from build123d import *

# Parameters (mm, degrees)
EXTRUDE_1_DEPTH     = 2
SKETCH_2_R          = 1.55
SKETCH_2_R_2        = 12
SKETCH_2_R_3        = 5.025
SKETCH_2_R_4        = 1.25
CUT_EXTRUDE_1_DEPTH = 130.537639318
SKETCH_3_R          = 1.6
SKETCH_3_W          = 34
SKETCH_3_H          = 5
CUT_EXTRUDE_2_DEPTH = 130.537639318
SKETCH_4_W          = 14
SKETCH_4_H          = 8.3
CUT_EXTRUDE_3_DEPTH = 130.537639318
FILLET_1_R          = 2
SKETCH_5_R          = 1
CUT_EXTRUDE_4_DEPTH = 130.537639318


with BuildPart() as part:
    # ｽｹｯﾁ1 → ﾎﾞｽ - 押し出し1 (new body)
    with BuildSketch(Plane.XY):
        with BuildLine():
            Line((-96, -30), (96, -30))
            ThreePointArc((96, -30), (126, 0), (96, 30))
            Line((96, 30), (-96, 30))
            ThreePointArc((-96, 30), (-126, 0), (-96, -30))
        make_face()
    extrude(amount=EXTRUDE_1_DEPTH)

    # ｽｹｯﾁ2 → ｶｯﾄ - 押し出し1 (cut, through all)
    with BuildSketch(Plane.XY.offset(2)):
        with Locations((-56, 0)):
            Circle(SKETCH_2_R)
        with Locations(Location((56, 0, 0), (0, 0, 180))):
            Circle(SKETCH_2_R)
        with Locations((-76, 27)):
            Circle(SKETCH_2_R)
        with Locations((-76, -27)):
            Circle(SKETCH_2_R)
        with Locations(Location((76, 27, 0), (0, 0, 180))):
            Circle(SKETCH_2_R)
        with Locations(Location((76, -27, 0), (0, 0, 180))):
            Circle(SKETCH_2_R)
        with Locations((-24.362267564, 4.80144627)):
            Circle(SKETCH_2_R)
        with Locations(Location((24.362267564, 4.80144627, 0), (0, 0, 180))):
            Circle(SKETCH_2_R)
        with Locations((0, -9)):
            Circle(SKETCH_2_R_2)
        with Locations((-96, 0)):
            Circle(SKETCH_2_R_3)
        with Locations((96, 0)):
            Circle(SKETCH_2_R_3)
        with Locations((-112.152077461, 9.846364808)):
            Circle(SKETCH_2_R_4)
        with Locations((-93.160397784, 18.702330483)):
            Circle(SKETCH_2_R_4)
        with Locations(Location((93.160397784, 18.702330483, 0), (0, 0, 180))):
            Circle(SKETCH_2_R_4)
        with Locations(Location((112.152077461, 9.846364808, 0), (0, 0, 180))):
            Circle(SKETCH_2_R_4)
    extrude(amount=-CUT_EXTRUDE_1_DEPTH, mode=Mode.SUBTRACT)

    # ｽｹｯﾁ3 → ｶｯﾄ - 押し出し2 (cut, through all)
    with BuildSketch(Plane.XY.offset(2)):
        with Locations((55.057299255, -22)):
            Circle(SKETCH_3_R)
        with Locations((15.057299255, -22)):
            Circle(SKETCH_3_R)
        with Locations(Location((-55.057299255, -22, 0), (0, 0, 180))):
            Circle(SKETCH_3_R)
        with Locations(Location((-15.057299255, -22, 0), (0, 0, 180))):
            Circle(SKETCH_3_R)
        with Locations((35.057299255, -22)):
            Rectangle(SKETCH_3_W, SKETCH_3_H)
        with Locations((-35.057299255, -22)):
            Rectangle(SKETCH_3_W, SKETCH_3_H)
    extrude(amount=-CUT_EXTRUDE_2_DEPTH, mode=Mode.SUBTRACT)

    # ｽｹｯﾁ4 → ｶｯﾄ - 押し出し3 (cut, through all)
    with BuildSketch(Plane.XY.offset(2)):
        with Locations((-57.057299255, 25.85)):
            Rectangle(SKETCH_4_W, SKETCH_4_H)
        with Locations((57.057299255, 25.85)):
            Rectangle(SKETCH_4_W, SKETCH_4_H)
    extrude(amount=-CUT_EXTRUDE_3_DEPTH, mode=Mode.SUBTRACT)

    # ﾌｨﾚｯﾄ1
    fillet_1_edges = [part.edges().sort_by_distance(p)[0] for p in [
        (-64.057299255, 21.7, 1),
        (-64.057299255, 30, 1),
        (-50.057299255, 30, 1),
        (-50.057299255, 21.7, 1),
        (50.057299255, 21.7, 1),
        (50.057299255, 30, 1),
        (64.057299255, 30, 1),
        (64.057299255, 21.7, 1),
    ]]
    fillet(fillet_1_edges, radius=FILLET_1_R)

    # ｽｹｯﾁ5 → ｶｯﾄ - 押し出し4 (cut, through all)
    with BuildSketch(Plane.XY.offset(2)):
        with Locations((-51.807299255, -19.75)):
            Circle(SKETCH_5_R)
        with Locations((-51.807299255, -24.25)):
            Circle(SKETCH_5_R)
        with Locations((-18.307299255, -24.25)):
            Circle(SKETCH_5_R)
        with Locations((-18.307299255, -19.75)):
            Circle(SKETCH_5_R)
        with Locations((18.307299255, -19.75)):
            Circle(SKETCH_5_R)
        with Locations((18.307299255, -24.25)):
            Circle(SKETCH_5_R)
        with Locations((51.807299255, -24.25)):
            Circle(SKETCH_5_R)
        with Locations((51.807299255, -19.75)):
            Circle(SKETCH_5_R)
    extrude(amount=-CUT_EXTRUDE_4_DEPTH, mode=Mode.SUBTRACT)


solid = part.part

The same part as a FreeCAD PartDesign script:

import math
import FreeCAD as App
import Part
import Sketcher
from FreeCAD import Vector


def edges_at(feature, points):
    """Names of the edges that pass closest to the given points."""
    edges = feature.Shape.Edges
    near = lambda p: min(range(len(edges)), key=lambda i: edges[i].distToShape(Part.Vertex(*p))[0])
    return sorted({f"Edge{near(p) + 1}" for p in points})

doc = App.newDocument("Part")
params = doc.addObject("Spreadsheet::Sheet", "Params")
for row, (alias, value) in enumerate([
    ("sketch1_radius", "30 mm"),
    ("sketch1_width", "192 mm"),
    ("pad1_length", "2 mm"),
    ("sketch2_diameter", "24 mm"),
    ("sketch2_diameter2", "3.1 mm"),
    ("sketch2_diameter3", "2.5 mm"),
    ("sketch2_diameter4", "10.05 mm"),
    ("sketch3_diameter", "3.2 mm"),
    ("sketch3_width", "34 mm"),
    ("sketch3_height", "5 mm"),
    ("sketch4_width", "14 mm"),
    ("sketch4_height", "8.3 mm"),
    ("fillet_radius", "2 mm"),
    ("sketch5_diameter", "2 mm"),
], start=1):
    params.set(f"A{row}", alias)
    params.set(f"B{row}", "=" + value)
    params.setAlias(f"B{row}", alias)

body = doc.addObject("PartDesign::Body", "Body")

sketch1 = doc.addObject("Sketcher::SketchObject", "Sketch")
body.addObject(sketch1)
sketch1.AttachmentSupport = (doc.XY_Plane, [""])
sketch1.MapMode = "FlatFace"
sketch1.addGeometry([
    Part.LineSegment(Vector(-96, -30, 0), Vector(96, -30, 0)),
    Part.ArcOfCircle(Part.Circle(Vector(96, 0, 0), Vector(0, 0, 1), 30), math.radians(-90), math.radians(90)),
    Part.LineSegment(Vector(96, 30, 0), Vector(-96, 30, 0)),
    Part.ArcOfCircle(Part.Circle(Vector(-96, 0, 0), Vector(0, 0, 1), 30), math.radians(90), math.radians(270)),
], False)
sketch1.addConstraint([
    Sketcher.Constraint("Tangent", 0, 2, 1, 1),
    Sketcher.Constraint("Tangent", 1, 2, 2, 1),
    Sketcher.Constraint("Tangent", 2, 2, 3, 1),
    Sketcher.Constraint("Tangent", 3, 2, 0, 1),
    Sketcher.Constraint("Horizontal", 0),
    Sketcher.Constraint("Horizontal", 2),
    Sketcher.Constraint("Symmetric", 1, 3, 3, 3, -1, 1),
    Sketcher.Constraint("Radius", 1, 30.0),
    Sketcher.Constraint("DistanceX", 0, 1, 0, 2, 192.0),
])
sketch1.setExpression("Constraints[7]", "Params.sketch1_radius")
sketch1.setExpression("Constraints[8]", "Params.sketch1_width")
pad1 = doc.addObject("PartDesign::Pad", "Pad")
body.addObject(pad1)
pad1.Profile = sketch1
pad1.setExpression("Length", "Params.pad1_length")

sketch2 = doc.addObject("Sketcher::SketchObject", "Sketch001")
body.addObject(sketch2)
sketch2.AttachmentSupport = (doc.XY_Plane, [""])
sketch2.MapMode = "FlatFace"
sketch2.AttachmentOffset = App.Placement(Vector(0, 0, 2), App.Rotation())
sketch2.addGeometry([
    Part.Circle(Vector(-56, 0, 0), Vector(0, 0, 1), 1.6),
    Part.Circle(Vector(56, 0, 0), Vector(0, 0, 1), 1.6),
    Part.Circle(Vector(-76, 27, 0), Vector(0, 0, 1), 1.6),
    Part.Circle(Vector(-76, -27, 0), Vector(0, 0, 1), 1.6),
    Part.Circle(Vector(76, 27, 0), Vector(0, 0, 1), 1.6),
    Part.Circle(Vector(76, -27, 0), Vector(0, 0, 1), 1.6),
    Part.Circle(Vector(-24.4, 4.8, 0), Vector(0, 0, 1), 1.6),
    Part.Circle(Vector(24.4, 4.8, 0), Vector(0, 0, 1), 1.6),
    Part.Circle(Vector(0, -9, 0), Vector(0, 0, 1), 12),
    Part.Circle(Vector(-96, 0, 0), Vector(0, 0, 1), 5),
    Part.Circle(Vector(96, 0, 0), Vector(0, 0, 1), 5),
    Part.Circle(Vector(-112.2, 9.8, 0), Vector(0, 0, 1), 1.2),
    Part.Circle(Vector(-93.2, 18.7, 0), Vector(0, 0, 1), 1.2),
    Part.Circle(Vector(93.2, 18.7, 0), Vector(0, 0, 1), 1.2),
    Part.Circle(Vector(112.2, 9.8, 0), Vector(0, 0, 1), 1.2),
], False)
sketch2.addConstraint([
    Sketcher.Constraint("Equal", 0, 1),
    Sketcher.Constraint("Equal", 1, 2),
    Sketcher.Constraint("Equal", 2, 3),
    Sketcher.Constraint("Equal", 3, 4),
    Sketcher.Constraint("Equal", 4, 5),
    Sketcher.Constraint("Equal", 5, 6),
    Sketcher.Constraint("Equal", 6, 7),
    Sketcher.Constraint("Equal", 9, 10),
    Sketcher.Constraint("Equal", 11, 12),
    Sketcher.Constraint("Equal", 12, 13),
    Sketcher.Constraint("Equal", 13, 14),
    Sketcher.Constraint("Symmetric", 0, 3, 1, 3, -1, 1),
    Sketcher.Constraint("Symmetric", 3, 3, 4, 3, -1, 1),
    Sketcher.Constraint("Symmetric", 2, 3, 5, 3, -1, 1),
    Sketcher.Constraint("Symmetric", 9, 3, 10, 3, -1, 1),
    Sketcher.Constraint("Symmetric", 2, 3, 4, 3, -2),
    Sketcher.Constraint("Symmetric", 6, 3, 7, 3, -2),
    Sketcher.Constraint("Symmetric", 12, 3, 13, 3, -2),
    Sketcher.Constraint("Symmetric", 11, 3, 14, 3, -2),
    Sketcher.Constraint("PointOnObject", 0, 3, -1),
    Sketcher.Constraint("PointOnObject", 8, 3, -2),
    Sketcher.Constraint("PointOnObject", 9, 3, -1),
    Sketcher.Constraint("Diameter", 8, 24.0),
    Sketcher.Constraint("Diameter", 0, 3.1),
    Sketcher.Constraint("Diameter", 11, 2.5),
    Sketcher.Constraint("Diameter", 9, 10.05),
    Sketcher.Constraint("DistanceX", 0, 3, -1, 1, 56.0),
    Sketcher.Constraint("DistanceX", 2, 3, -1, 1, 76.0),
    Sketcher.Constraint("DistanceY", -1, 1, 2, 3, 27.0),
    Sketcher.Constraint("DistanceY", 8, 3, -1, 1, 9.0),
    Sketcher.Constraint("DistanceX", 9, 3, -1, 1, 96.0),
    Sketcher.Constraint("DistanceY", -1, 1, 12, 3, 18.70233),
    Sketcher.Constraint("DistanceX", 11, 3, 6, 3, 87.78981),
    Sketcher.Constraint("DistanceY", 6, 3, 11, 3, 5.044919),
    Sketcher.Constraint("DistanceX", 11, 3, 12, 3, 18.99168),
    Sketcher.Constraint("DistanceX", 6, 3, -1, 1, 24.362268),
    Sketcher.Constraint("DistanceY", -1, 1, 6, 3, 4.801446),
])
sketch2.setExpression("Constraints[22]", "Params.sketch2_diameter")
sketch2.setExpression("Constraints[23]", "Params.sketch2_diameter2")
sketch2.setExpression("Constraints[24]", "Params.sketch2_diameter3")
sketch2.setExpression("Constraints[25]", "Params.sketch2_diameter4")
pocket1 = doc.addObject("PartDesign::Pocket", "Pocket")
body.addObject(pocket1)
pocket1.Profile = sketch2
pocket1.Type = "ThroughAll"

sketch3 = doc.addObject("Sketcher::SketchObject", "Sketch002")
body.addObject(sketch3)
sketch3.AttachmentSupport = (doc.XY_Plane, [""])
sketch3.MapMode = "FlatFace"
sketch3.AttachmentOffset = App.Placement(Vector(0, 0, 2), App.Rotation())
sketch3.addGeometry([
    Part.Circle(Vector(55.1, -22, 0), Vector(0, 0, 1), 1.6),
    Part.Circle(Vector(15.1, -22, 0), Vector(0, 0, 1), 1.6),
    Part.Circle(Vector(-55.1, -22, 0), Vector(0, 0, 1), 1.6),
    Part.Circle(Vector(-15.1, -22, 0), Vector(0, 0, 1), 1.6),
    Part.LineSegment(Vector(18.1, -19.5, 0), Vector(18.1, -24.5, 0)),
    Part.LineSegment(Vector(18.1, -24.5, 0), Vector(52.1, -24.5, 0)),
    Part.LineSegment(Vector(52.1, -24.5, 0), Vector(52.1, -19.5, 0)),
    Part.LineSegment(Vector(52.1, -19.5, 0), Vector(18.1, -19.5, 0)),
    Part.LineSegment(Vector(-52.1, -19.5, 0), Vector(-52.1, -24.5, 0)),
    Part.LineSegment(Vector(-52.1, -24.5, 0), Vector(-18.1, -24.5, 0)),
    Part.LineSegment(Vector(-18.1, -24.5, 0), Vector(-18.1, -19.5, 0)),
    Part.LineSegment(Vector(-18.1, -19.5, 0), Vector(-52.1, -19.5, 0)),
], False)
sketch3.addConstraint([
    Sketcher.Constraint("Coincident", 4, 2, 5, 1),
    Sketcher.Constraint("Coincident", 5, 2, 6, 1),
    Sketcher.Constraint("Coincident", 6, 2, 7, 1),
    Sketcher.Constraint("Coincident", 7, 2, 4, 1),
    Sketcher.Constraint("Coincident", 8, 2, 9, 1),
    Sketcher.Constraint("Coincident", 9, 2, 10, 1),
    Sketcher.Constraint("Coincident", 10, 2, 11, 1),
    Sketcher.Constraint("Coincident", 11, 2, 8, 1),
    Sketcher.Constraint("Vertical", 4),
    Sketcher.Constraint("Horizontal", 5),
    Sketcher.Constraint("Vertical", 6),
    Sketcher.Constraint("Horizontal", 7),
    Sketcher.Constraint("Vertical", 8),
    Sketcher.Constraint("Horizontal", 9),
    Sketcher.Constraint("Vertical", 10),
    Sketcher.Constraint("Horizontal", 11),
    Sketcher.Constraint("Equal", 0, 1),
    Sketcher.Constraint("Equal", 1, 2),
    Sketcher.Constraint("Equal", 2, 3),
    Sketcher.Constraint("Symmetric", 0, 3, 2, 3, -2),
    Sketcher.Constraint("Symmetric", 1, 3, 3, 3, -2),
    Sketcher.Constraint("Symmetric", 5, 2, 8, 2, -2),
    Sketcher.Constraint("Symmetric", 7, 2, 10, 2, -2),
    Sketcher.Constraint("Horizontal", 0, 3, 1, 3),
    Sketcher.Constraint("Diameter", 0, 3.2),
    Sketcher.Constraint("DistanceX", 5, 1, 5, 2, 34.0),
    Sketcher.Constraint("DistanceY", 4, 2, 4, 1, 5.0),
    Sketcher.Constraint("DistanceY", 0, 3, -1, 1, 22.0),
    Sketcher.Constraint("DistanceX", 1, 3, 0, 3, 40.0),
    Sketcher.Constraint("DistanceX", 1, 3, 4, 2, 3.0),
    Sketcher.Constraint("DistanceY", 4, 2, -1, 1, 24.5),
    Sketcher.Constraint("DistanceX", -1, 1, 0, 3, 55.057299),
])
sketch3.setExpression("Constraints[24]", "Params.sketch3_diameter")
sketch3.setExpression("Constraints[25]", "Params.sketch3_width")
sketch3.setExpression("Constraints[26]", "Params.sketch3_height")
pocket2 = doc.addObject("PartDesign::Pocket", "Pocket001")
body.addObject(pocket2)
pocket2.Profile = sketch3
pocket2.Type = "ThroughAll"

sketch4 = doc.addObject("Sketcher::SketchObject", "Sketch003")
body.addObject(sketch4)
sketch4.AttachmentSupport = (doc.XY_Plane, [""])
sketch4.MapMode = "FlatFace"
sketch4.AttachmentOffset = App.Placement(Vector(0, 0, 2), App.Rotation())
sketch4.addGeometry([
    Part.LineSegment(Vector(-64, 30, 0), Vector(-64, 22, 0)),
    Part.LineSegment(Vector(-64, 22, 0), Vector(-50, 22, 0)),
    Part.LineSegment(Vector(-50, 22, 0), Vector(-50, 30, 0)),
    Part.LineSegment(Vector(-50, 30, 0), Vector(-64, 30, 0)),
    Part.LineSegment(Vector(50, 30, 0), Vector(50, 22, 0)),
    Part.LineSegment(Vector(50, 22, 0), Vector(64, 22, 0)),
    Part.LineSegment(Vector(64, 22, 0), Vector(64, 30, 0)),
    Part.LineSegment(Vector(64, 30, 0), Vector(50, 30, 0)),
], False)
sketch4.addConstraint([
    Sketcher.Constraint("Coincident", 0, 2, 1, 1),
    Sketcher.Constraint("Coincident", 1, 2, 2, 1),
    Sketcher.Constraint("Coincident", 2, 2, 3, 1),
    Sketcher.Constraint("Coincident", 3, 2, 0, 1),
    Sketcher.Constraint("Coincident", 4, 2, 5, 1),
    Sketcher.Constraint("Coincident", 5, 2, 6, 1),
    Sketcher.Constraint("Coincident", 6, 2, 7, 1),
    Sketcher.Constraint("Coincident", 7, 2, 4, 1),
    Sketcher.Constraint("Vertical", 0),
    Sketcher.Constraint("Horizontal", 1),
    Sketcher.Constraint("Vertical", 2),
    Sketcher.Constraint("Horizontal", 3),
    Sketcher.Constraint("Vertical", 4),
    Sketcher.Constraint("Horizontal", 5),
    Sketcher.Constraint("Vertical", 6),
    Sketcher.Constraint("Horizontal", 7),
    Sketcher.Constraint("Symmetric", 1, 2, 4, 2, -2),
    Sketcher.Constraint("Symmetric", 3, 2, 6, 2, -2),
    Sketcher.Constraint("DistanceX", 1, 1, 1, 2, 14.0),
    Sketcher.Constraint("DistanceY", 0, 2, 0, 1, 8.3),
    Sketcher.Constraint("DistanceY", -1, 1, 2, 2, 30.0),
    Sketcher.Constraint("DistanceX", 0, 2, -1, 1, 64.057299),
])
sketch4.setExpression("Constraints[18]", "Params.sketch4_width")
sketch4.setExpression("Constraints[19]", "Params.sketch4_height")
pocket3 = doc.addObject("PartDesign::Pocket", "Pocket002")
body.addObject(pocket3)
pocket3.Profile = sketch4
pocket3.Type = "ThroughAll"
doc.recompute()

fillet = doc.addObject("PartDesign::Fillet", "Fillet")
body.addObject(fillet)
fillet.Base = (pocket3, edges_at(pocket3, [
    (-64.057, 21.7, 1),
    (-64.057, 30, 1),
    (-50.057, 30, 1),
    (-50.057, 21.7, 1),
    (50.057, 21.7, 1),
    (50.057, 30, 1),
    (64.057, 30, 1),
    (64.057, 21.7, 1),
]))
fillet.setExpression("Radius", "Params.fillet_radius")

sketch5 = doc.addObject("Sketcher::SketchObject", "Sketch004")
body.addObject(sketch5)
sketch5.AttachmentSupport = (doc.XY_Plane, [""])
sketch5.MapMode = "FlatFace"
sketch5.AttachmentOffset = App.Placement(Vector(0, 0, 2), App.Rotation())
sketch5.addGeometry([
    Part.Circle(Vector(-51.8, -19.8, 0), Vector(0, 0, 1), 1),
    Part.Circle(Vector(-51.8, -24.2, 0), Vector(0, 0, 1), 1),
    Part.Circle(Vector(-18.3, -24.2, 0), Vector(0, 0, 1), 1),
    Part.Circle(Vector(-18.3, -19.8, 0), Vector(0, 0, 1), 1),
    Part.Circle(Vector(18.3, -19.8, 0), Vector(0, 0, 1), 1),
    Part.Circle(Vector(18.3, -24.2, 0), Vector(0, 0, 1), 1),
    Part.Circle(Vector(51.8, -24.2, 0), Vector(0, 0, 1), 1),
    Part.Circle(Vector(51.8, -19.8, 0), Vector(0, 0, 1), 1),
], False)
sketch5.addConstraint([
    Sketcher.Constraint("Equal", 0, 1),
    Sketcher.Constraint("Equal", 1, 2),
    Sketcher.Constraint("Equal", 2, 3),
    Sketcher.Constraint("Equal", 3, 4),
    Sketcher.Constraint("Equal", 4, 5),
    Sketcher.Constraint("Equal", 5, 6),
    Sketcher.Constraint("Equal", 6, 7),
    Sketcher.Constraint("Symmetric", 3, 3, 4, 3, -2),
    Sketcher.Constraint("Symmetric", 2, 3, 5, 3, -2),
    Sketcher.Constraint("Symmetric", 1, 3, 6, 3, -2),
    Sketcher.Constraint("Symmetric", 0, 3, 7, 3, -2),
    Sketcher.Constraint("Horizontal", 1, 3, 2, 3),
    Sketcher.Constraint("Horizontal", 0, 3, 3, 3),
    Sketcher.Constraint("Vertical", 0, 3, 1, 3),
    Sketcher.Constraint("Vertical", 2, 3, 3, 3),
    Sketcher.Constraint("Diameter", 0, 2.0),
    Sketcher.Constraint("DistanceY", 1, 3, 0, 3, 4.5),
    Sketcher.Constraint("DistanceX", 1, 3, 2, 3, 33.5),
    Sketcher.Constraint("DistanceY", 0, 3, -1, 1, 19.75),
    Sketcher.Constraint("DistanceX", 0, 3, -1, 1, 51.807299),
])
sketch5.setExpression("Constraints[15]", "Params.sketch5_diameter")
pocket4 = doc.addObject("PartDesign::Pocket", "Pocket003")
body.addObject(pocket4)
pocket4.Profile = sketch5
pocket4.Type = "ThroughAll"

doc.recompute()
